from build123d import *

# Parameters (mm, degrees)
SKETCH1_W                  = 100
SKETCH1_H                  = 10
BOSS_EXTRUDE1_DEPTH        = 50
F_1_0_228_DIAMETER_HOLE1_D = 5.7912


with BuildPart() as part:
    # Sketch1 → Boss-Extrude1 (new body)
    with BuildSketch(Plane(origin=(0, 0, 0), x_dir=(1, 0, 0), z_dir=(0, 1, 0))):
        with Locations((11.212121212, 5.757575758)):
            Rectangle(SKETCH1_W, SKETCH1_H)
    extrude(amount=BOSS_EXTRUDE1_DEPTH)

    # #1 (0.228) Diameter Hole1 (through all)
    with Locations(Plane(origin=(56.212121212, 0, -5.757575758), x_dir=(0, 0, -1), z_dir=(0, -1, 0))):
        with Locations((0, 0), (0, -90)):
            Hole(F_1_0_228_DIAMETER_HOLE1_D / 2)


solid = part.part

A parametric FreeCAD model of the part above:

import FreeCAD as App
import Part
import Sketcher

V = App.Vector

doc = App.newDocument("Part")
body = doc.addObject("PartDesign::Body", "Body")

sketch1 = doc.addObject("Sketcher::SketchObject", "Sketch")
body.addObject(sketch1)
sketch1.AttachmentSupport = (doc.XZ_Plane, [""])
sketch1.MapMode = "FlatFace"
sketch1.addGeometry([
    Part.LineSegment(V(-39, -11, 0), V(-39, -1, 0)),
    Part.LineSegment(V(-39, -1, 0), V(61, -1, 0)),
    Part.LineSegment(V(61, -1, 0), V(61, -11, 0)),
    Part.LineSegment(V(61, -11, 0), V(-39, -11, 0)),
], False)
sketch1.addConstraint([
    Sketcher.Constraint("Coincident", 0, 2, 1, 1),
    Sketcher.Constraint("Coincident", 1, 2, 2, 1),
    Sketcher.Constraint("Coincident", 2, 2, 3, 1),
    Sketcher.Constraint("Coincident", 3, 2, 0, 1),
    Sketcher.Constraint("Vertical", 0),
    Sketcher.Constraint("Horizontal", 1),
    Sketcher.Constraint("Vertical", 2),
    Sketcher.Constraint("Horizontal", 3),
    Sketcher.Constraint("DistanceX", 1, 1, 1, 2, 100.0),
    Sketcher.Constraint("DistanceY", 0, 1, 0, 2, 10.0),
    Sketcher.Constraint("DistanceX", 0, 2, -1, 1, 38.787879),
    Sketcher.Constraint("DistanceY", 0, 2, -1, 1, 0.757576),
])
pad1 = doc.addObject("PartDesign::Pad", "Pad")
body.addObject(pad1)
pad1.Profile = sketch1
pad1.Length = 50
pad1.Reversed = True

sketch2 = doc.addObject("Sketcher::SketchObject", "Sketch001")
body.addObject(sketch2)
sketch2.AttachmentSupport = (doc.XZ_Plane, [""])
sketch2.MapMode = "FlatFace"
sketch2.addGeometry([
    Part.Circle(V(56.2, -5.8, 0), V(0, 0, 1), 2.9),
    Part.Circle(V(-33.8, -5.8, 0), V(0, 0, 1), 2.9),
], False)
sketch2.addConstraint([
    Sketcher.Constraint("Equal", 0, 1),
    Sketcher.Constraint("Horizontal", 0, 3, 1, 3),
    Sketcher.Constraint("DistanceX", 1, 3, 0, 3, 90.0),
    Sketcher.Constraint("Diameter", 0, 5.7912),
    Sketcher.Constraint("DistanceX", -1, 1, 0, 3, 56.212121),
    Sketcher.Constraint("DistanceY", 0, 3, -1, 1, 5.757576),
])
doc.recompute()
hole = doc.addObject("PartDesign::Hole", "Hole")
body.addObject(hole)
hole.Profile = sketch2
hole.ThreadType = "None"
hole.Diameter = 5.7912
hole.DepthType = "ThroughAll"

doc.recompute()
